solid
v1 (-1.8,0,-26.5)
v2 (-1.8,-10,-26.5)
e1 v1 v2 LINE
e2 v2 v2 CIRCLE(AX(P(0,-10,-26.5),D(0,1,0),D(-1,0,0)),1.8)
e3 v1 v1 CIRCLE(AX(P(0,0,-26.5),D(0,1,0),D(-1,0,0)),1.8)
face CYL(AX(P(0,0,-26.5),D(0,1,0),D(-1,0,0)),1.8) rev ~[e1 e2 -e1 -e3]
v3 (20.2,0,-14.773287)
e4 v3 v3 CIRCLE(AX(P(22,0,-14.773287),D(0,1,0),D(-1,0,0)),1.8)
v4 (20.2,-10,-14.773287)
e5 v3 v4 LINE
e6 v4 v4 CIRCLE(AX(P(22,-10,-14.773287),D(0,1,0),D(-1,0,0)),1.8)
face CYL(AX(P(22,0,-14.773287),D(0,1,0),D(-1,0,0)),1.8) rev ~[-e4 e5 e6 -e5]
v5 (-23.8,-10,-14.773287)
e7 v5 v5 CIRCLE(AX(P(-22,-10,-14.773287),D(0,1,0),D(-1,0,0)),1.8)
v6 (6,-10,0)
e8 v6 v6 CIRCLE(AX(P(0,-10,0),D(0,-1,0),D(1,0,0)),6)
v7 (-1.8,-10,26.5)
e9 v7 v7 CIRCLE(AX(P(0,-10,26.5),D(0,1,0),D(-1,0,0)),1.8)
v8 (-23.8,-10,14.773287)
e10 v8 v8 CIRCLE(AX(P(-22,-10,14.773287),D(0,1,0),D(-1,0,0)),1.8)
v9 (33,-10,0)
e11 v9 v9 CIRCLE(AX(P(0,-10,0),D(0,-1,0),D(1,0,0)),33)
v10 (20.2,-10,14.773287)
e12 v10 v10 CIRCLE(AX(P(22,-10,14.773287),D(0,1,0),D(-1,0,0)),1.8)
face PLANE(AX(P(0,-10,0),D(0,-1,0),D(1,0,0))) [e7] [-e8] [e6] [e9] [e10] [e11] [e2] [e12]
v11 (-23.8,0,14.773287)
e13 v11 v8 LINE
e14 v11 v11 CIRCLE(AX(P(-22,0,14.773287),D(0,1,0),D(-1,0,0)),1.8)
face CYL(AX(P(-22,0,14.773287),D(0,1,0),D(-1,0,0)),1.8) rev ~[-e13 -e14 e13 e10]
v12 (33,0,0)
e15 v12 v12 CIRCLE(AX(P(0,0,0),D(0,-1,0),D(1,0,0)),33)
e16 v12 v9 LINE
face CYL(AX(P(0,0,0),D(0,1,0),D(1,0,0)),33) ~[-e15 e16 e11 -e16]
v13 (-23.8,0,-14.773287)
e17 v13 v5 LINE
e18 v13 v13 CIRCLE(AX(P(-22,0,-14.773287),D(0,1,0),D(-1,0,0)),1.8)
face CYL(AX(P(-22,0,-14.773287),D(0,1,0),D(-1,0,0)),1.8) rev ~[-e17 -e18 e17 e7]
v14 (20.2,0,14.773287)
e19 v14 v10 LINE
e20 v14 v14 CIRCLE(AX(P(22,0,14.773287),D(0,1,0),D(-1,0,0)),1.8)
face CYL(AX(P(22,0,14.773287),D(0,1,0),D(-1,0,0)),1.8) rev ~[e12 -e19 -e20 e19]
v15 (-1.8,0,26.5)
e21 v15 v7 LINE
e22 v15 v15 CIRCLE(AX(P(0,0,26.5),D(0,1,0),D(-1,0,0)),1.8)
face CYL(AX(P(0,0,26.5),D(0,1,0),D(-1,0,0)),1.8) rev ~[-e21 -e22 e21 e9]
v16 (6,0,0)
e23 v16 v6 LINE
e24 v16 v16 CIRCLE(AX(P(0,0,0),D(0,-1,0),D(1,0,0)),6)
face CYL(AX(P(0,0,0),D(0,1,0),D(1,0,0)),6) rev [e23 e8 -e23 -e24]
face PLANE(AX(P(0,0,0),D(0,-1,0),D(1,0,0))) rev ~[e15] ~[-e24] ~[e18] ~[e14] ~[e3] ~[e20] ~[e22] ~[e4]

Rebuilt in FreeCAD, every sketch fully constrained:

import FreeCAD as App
import Part
import Sketcher

doc = App.newDocument("Part")
body = doc.addObject("PartDesign::Body", "Body")

sketch1 = doc.addObject("Sketcher::SketchObject", "Sketch")
body.addObject(sketch1)
sketch1.AttachmentSupport = (doc.XZ_Plane, [""])
sketch1.MapMode = "FlatFace"
sketch1.addGeometry([
    Part.Circle(App.Vector(0, 0, 0), App.Vector(0, 0, 1), 33),
    Part.Circle(App.Vector(0, 0, 0), App.Vector(0, 0, 1), 6),
], False)
sketch1.addConstraint([
    Sketcher.Constraint("Coincident", 0, 3, -1, 1),
    Sketcher.Constraint("Coincident", 1, 3, -1, 1),
    Sketcher.Constraint("Diameter", 0, 66.0),
    Sketcher.Constraint("Diameter", 1, 12.0),
])
pad1 = doc.addObject("PartDesign::Pad", "Pad")
body.addObject(pad1)
pad1.Profile = sketch1
pad1.Length = 10

sketch2 = doc.addObject("Sketcher::SketchObject", "Sketch001")
body.addObject(sketch2)
sketch2.AttachmentSupport = (doc.XZ_Plane, [""])
sketch2.MapMode = "FlatFace"
sketch2.addGeometry([
    Part.Circle(App.Vector(0, -26.5, 0), App.Vector(0, 0, 1), 1.8),
    Part.Circle(App.Vector(22, 14.773287, 0), App.Vector(0, 0, 1), 1.8),
    Part.Circle(App.Vector(-22, 14.773287, 0), App.Vector(0, 0, 1), 1.8),
    Part.Circle(App.Vector(-22, -14.773287, 0), App.Vector(0, 0, 1), 1.8),
    Part.Circle(App.Vector(22, -14.773287, 0), App.Vector(0, 0, 1), 1.8),
    Part.Circle(App.Vector(0, 26.5, 0), App.Vector(0, 0, 1), 1.8),
], False)
sketch2.addConstraint([
    Sketcher.Constraint("Equal", 0, 1),
    Sketcher.Constraint("Equal", 1, 2),
    Sketcher.Constraint("Equal", 2, 3),
    Sketcher.Constraint("Equal", 3, 4),
    Sketcher.Constraint("Equal", 4, 5),
    Sketcher.Constraint("Symmetric", 1, 3, 3, 3, -1, 1),
    Sketcher.Constraint("Symmetric", 2, 3, 4, 3, -1, 1),
    Sketcher.Constraint("Symmetric", 0, 3, 5, 3, -1, 1),
    Sketcher.Constraint("Symmetric", 1, 3, 2, 3, -2),
    Sketcher.Constraint("PointOnObject", 0, 3, -2),
    Sketcher.Constraint("Diameter", 0, 3.6),
    Sketcher.Constraint("DistanceX", -1, 1, 1, 3, 22.0),
    Sketcher.Constraint("DistanceY", 0, 3, 5, 3, 53.0),
    Sketcher.Constraint("DistanceY", -1, 1, 1, 3, 14.773287),
])
pocket1 = doc.addObject("PartDesign::Pocket", "Pocket")
body.addObject(pocket1)
pocket1.Profile = sketch2
pocket1.Length = 25
pocket1.Reversed = True

doc.recompute()
